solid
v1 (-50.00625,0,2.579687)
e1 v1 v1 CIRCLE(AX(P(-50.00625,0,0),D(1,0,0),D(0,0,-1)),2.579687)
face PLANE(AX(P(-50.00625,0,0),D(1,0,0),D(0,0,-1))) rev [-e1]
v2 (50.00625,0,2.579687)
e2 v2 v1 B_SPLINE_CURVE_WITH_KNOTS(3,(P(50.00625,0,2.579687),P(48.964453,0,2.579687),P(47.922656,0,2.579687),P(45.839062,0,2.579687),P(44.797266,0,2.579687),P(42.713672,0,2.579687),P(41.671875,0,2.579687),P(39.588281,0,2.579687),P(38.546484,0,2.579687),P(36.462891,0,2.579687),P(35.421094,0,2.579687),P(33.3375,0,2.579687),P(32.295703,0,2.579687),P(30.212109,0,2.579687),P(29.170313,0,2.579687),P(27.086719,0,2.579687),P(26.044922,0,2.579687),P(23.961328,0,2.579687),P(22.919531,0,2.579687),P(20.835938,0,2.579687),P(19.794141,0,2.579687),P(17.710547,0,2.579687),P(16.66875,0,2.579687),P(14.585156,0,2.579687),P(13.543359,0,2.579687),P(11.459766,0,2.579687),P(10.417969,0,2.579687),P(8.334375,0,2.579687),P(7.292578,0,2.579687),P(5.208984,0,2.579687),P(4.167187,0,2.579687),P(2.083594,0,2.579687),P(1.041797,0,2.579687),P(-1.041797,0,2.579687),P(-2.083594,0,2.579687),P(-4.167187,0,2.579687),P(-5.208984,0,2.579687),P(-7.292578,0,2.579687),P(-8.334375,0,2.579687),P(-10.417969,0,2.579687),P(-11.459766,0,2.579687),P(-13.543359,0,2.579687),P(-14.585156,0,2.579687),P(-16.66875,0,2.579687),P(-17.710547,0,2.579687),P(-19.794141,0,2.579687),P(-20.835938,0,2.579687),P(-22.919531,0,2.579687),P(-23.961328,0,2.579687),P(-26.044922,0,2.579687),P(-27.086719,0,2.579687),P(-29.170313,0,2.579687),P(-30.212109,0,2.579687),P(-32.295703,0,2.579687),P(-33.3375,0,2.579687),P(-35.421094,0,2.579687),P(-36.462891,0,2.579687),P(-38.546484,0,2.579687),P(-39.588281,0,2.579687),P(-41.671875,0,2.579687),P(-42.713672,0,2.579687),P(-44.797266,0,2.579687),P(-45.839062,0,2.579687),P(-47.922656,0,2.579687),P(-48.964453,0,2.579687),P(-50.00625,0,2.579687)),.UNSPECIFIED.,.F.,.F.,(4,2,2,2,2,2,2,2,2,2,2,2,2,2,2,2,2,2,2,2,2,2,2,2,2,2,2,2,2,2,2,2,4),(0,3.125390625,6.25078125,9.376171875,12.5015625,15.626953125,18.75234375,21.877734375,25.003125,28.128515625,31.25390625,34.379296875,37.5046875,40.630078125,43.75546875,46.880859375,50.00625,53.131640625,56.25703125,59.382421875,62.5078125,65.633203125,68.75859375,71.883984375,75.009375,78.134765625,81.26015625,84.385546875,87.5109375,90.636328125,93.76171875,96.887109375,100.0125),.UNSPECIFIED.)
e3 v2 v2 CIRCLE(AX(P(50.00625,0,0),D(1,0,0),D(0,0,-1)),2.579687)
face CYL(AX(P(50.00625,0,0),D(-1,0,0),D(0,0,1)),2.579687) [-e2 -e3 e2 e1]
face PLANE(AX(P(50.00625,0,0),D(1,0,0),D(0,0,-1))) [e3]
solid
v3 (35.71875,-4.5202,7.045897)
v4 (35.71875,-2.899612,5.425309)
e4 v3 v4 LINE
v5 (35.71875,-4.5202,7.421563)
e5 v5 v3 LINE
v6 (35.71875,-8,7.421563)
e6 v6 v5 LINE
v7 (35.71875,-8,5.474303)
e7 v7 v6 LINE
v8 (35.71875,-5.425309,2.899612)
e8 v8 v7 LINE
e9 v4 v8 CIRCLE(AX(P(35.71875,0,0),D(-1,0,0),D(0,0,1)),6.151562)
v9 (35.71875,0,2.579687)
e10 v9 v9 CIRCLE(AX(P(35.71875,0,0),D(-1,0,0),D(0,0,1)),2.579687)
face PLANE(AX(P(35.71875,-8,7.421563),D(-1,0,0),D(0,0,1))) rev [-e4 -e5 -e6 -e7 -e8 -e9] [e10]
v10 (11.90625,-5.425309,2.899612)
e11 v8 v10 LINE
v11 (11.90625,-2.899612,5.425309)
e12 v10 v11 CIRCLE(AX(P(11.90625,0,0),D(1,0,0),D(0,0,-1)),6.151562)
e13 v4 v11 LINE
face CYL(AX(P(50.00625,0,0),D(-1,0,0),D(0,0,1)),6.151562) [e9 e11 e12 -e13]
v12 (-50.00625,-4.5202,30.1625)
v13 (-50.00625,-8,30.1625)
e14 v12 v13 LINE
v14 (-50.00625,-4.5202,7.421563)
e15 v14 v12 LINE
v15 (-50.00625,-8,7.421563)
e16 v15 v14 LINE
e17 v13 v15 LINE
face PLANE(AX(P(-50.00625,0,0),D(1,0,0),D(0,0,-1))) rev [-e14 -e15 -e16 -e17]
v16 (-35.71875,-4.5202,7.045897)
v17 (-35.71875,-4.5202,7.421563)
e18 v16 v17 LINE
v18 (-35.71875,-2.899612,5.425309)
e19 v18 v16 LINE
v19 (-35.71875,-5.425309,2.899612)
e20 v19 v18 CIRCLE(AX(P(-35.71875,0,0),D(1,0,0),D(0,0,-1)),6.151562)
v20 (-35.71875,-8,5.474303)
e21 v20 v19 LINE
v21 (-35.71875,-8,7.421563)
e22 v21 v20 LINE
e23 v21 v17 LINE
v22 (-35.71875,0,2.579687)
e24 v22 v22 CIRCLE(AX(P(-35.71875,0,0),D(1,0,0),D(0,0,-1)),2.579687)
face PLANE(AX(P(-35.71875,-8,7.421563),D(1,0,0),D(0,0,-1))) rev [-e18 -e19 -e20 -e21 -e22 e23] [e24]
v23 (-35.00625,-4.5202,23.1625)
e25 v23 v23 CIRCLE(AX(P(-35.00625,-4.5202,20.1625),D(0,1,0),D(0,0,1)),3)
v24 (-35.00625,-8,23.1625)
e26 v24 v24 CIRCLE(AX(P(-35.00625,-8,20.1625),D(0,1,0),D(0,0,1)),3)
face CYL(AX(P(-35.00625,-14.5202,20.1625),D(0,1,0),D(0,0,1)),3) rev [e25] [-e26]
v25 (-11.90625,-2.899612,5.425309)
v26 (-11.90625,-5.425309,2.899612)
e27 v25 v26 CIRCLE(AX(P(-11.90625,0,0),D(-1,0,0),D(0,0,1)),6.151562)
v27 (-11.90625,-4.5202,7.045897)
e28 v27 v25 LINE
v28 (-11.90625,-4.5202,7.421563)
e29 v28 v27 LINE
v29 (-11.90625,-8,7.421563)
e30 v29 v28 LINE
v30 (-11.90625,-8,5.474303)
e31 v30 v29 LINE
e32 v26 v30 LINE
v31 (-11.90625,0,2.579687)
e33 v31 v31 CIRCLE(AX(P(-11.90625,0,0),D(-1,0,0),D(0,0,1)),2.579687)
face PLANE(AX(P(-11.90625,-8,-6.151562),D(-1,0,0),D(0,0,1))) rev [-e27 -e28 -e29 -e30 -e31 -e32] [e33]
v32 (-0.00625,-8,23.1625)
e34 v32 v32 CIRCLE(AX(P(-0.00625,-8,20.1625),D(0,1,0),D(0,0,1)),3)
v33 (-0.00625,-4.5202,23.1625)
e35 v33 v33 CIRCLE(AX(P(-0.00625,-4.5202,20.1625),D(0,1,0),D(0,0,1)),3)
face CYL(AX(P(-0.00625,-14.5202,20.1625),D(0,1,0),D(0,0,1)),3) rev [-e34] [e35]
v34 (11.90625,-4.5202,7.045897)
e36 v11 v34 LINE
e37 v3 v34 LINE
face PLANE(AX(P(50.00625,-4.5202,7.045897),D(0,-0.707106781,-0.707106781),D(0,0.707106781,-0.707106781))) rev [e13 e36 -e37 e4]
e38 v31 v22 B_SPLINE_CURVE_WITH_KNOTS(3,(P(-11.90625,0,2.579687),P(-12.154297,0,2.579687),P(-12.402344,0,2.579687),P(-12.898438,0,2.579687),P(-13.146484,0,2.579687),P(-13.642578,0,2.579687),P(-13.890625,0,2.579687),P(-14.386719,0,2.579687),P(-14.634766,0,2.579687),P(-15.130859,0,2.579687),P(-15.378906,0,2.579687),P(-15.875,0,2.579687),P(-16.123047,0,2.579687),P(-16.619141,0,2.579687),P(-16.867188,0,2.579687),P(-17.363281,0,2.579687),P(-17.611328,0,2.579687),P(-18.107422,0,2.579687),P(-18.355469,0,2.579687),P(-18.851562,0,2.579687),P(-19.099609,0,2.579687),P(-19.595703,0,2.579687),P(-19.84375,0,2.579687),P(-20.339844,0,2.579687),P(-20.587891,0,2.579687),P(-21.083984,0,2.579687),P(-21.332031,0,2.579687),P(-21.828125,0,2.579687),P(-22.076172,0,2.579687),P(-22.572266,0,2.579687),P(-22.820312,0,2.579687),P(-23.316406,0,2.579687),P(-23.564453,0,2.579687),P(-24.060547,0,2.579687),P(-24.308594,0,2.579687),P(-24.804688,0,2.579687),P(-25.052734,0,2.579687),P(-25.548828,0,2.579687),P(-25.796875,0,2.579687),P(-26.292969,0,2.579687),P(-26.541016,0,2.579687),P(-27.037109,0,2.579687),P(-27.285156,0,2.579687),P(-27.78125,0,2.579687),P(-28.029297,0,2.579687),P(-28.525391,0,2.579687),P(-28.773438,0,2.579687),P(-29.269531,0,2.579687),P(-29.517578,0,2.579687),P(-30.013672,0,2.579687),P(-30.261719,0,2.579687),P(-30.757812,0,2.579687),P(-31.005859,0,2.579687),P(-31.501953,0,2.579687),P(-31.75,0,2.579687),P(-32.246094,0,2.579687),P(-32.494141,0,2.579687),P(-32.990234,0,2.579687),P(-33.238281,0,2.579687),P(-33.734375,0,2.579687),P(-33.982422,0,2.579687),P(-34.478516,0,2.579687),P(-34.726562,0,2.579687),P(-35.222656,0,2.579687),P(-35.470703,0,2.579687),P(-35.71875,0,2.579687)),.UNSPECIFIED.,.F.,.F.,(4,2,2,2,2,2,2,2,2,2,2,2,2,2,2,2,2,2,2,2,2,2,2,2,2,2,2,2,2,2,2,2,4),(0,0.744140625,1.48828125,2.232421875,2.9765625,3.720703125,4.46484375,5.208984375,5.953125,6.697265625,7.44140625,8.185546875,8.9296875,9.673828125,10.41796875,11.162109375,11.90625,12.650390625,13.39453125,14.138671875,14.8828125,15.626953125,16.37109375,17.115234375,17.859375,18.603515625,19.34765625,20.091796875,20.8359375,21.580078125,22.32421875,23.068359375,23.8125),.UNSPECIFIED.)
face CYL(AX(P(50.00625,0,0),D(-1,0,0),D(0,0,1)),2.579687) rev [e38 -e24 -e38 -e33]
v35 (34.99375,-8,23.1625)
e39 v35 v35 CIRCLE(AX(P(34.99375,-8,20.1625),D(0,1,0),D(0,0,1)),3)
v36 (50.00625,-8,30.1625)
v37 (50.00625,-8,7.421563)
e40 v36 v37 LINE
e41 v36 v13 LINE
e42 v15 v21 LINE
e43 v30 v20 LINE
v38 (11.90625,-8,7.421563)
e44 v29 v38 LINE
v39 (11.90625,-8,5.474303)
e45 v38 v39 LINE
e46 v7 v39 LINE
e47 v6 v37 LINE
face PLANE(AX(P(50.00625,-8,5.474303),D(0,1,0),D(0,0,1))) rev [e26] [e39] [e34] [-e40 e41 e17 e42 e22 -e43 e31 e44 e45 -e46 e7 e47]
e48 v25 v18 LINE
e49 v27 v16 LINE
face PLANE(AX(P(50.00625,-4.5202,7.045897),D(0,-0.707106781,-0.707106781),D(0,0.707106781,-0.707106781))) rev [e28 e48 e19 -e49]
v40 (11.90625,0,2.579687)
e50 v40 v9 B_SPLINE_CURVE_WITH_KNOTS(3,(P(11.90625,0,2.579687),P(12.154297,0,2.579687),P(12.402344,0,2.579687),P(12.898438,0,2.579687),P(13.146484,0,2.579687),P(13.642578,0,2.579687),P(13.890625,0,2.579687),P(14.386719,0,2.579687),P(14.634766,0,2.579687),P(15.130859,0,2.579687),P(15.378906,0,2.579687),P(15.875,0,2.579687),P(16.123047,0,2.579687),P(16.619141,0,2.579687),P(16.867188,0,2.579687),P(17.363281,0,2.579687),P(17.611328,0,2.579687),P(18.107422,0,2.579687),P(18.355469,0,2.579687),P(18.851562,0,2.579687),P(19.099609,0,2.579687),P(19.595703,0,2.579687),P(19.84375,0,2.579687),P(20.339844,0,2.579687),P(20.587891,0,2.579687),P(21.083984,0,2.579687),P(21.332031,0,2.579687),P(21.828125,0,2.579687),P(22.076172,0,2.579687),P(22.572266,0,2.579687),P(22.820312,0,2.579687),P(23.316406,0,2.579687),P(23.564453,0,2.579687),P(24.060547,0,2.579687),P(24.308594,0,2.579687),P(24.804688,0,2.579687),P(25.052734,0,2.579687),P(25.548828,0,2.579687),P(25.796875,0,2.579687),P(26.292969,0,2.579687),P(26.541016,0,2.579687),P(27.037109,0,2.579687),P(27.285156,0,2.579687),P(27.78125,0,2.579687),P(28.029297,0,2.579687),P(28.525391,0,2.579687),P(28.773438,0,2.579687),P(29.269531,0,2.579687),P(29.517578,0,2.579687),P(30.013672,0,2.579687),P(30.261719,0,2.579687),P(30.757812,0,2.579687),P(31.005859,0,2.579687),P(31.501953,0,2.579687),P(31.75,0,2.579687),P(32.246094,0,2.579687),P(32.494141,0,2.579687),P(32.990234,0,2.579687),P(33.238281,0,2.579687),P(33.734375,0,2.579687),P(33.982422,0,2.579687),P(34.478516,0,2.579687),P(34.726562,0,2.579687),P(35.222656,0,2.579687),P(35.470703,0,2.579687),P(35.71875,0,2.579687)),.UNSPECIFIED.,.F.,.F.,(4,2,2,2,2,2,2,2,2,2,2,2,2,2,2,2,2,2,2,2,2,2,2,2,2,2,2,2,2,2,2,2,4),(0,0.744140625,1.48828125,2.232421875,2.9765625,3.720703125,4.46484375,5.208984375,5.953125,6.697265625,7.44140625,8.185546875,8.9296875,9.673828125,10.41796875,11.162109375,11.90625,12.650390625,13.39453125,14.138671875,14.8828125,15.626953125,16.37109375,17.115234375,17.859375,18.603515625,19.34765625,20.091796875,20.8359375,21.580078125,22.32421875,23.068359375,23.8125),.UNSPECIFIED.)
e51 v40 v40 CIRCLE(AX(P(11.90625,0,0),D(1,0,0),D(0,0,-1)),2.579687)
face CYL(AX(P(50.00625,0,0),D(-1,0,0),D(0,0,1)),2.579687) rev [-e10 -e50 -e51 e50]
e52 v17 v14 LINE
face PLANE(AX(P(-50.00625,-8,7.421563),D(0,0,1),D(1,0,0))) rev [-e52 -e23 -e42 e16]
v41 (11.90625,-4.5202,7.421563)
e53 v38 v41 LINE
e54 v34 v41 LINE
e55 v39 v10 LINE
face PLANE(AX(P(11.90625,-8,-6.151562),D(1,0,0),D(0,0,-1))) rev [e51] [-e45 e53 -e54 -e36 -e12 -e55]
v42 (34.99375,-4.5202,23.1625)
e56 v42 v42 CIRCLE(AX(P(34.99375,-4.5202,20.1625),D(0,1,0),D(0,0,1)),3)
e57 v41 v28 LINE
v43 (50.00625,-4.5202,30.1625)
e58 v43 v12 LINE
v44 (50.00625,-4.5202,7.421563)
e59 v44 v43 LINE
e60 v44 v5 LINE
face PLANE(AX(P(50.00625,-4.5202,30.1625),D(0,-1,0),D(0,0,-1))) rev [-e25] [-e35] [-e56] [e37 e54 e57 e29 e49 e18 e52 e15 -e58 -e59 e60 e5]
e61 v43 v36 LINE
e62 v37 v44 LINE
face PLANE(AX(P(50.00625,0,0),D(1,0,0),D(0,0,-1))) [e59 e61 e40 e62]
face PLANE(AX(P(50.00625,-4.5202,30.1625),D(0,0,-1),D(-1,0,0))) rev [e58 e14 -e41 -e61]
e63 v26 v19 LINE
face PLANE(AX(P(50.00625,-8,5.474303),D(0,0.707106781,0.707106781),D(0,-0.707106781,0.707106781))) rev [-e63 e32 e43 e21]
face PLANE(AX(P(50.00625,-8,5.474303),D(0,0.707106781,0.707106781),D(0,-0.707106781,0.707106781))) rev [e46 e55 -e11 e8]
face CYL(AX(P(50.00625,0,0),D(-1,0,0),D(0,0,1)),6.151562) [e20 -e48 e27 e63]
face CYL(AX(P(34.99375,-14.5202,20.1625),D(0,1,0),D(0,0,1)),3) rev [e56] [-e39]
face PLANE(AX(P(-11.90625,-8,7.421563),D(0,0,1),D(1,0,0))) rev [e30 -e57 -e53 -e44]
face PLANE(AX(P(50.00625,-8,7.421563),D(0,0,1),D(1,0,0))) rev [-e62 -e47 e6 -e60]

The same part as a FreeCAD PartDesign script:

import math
import FreeCAD as App
import Part
import Sketcher

V = App.Vector
Q = App.Units.Quantity


def add_polygon(sketch, points):
    """Adds a closed chain of lines whose ends are joined by coincident constraints."""
    first, n = sketch.GeometryCount, len(points)
    for a, b in zip(points, points[1:] + points[:1]):
        sketch.addGeometry(Part.LineSegment(App.Vector(*a, 0), App.Vector(*b, 0)), False)
    for i in range(n):
        sketch.addConstraint(Sketcher.Constraint("Coincident", first + i, 2, first + (i + 1) % n, 1))

doc = App.newDocument("Part")
body = doc.addObject("PartDesign::Body", "Body")

# Sketch on YZ plane
sketch1 = body.newObject("Sketcher::SketchObject", "Sketch")
sketch1.AttachmentSupport = (doc.getObject("YZ_Plane"), [""])
sketch1.MapMode = "FlatFace"
sketch1.addGeometry([
    Part.LineSegment(V(-8, 5.5, 0), V(-5.4, 2.9, 0)),  # 0
    Part.ArcOfCircle(Part.Circle(V(0, 0, 0), V(0, 0, 1), 6.2), math.radians(152), math.radians(478)),  # 1
    Part.LineSegment(V(-2.9, 5.4, 0), V(-4.5, 7, 0)),  # 2
    Part.LineSegment(V(-4.5, 7, 0), V(-4.5, 30.2, 0)),  # 3
    Part.LineSegment(V(-4.5, 30.2, 0), V(-8, 30.2, 0)),  # 4
    Part.LineSegment(V(-8, 30.2, 0), V(-8, 5.5, 0)),  # 5
    Part.Circle(V(0, 0, 0), V(0, 0, 1), 2.6),  # 6
], False)
sketch1.addConstraint([
    Sketcher.Constraint("Coincident", 0, 2, 1, 1),
    Sketcher.Constraint("Coincident", 1, 2, 2, 1),
    Sketcher.Constraint("Coincident", 2, 2, 3, 1),
    Sketcher.Constraint("Coincident", 3, 2, 4, 1),
    Sketcher.Constraint("Coincident", 4, 2, 5, 1),
    Sketcher.Constraint("Coincident", 5, 2, 0, 1),
    Sketcher.Constraint("Vertical", 3),
    Sketcher.Constraint("Horizontal", 4),
    Sketcher.Constraint("Vertical", 5),
    Sketcher.Constraint("Coincident", 1, 3, -1, 1),
    Sketcher.Constraint("Coincident", 6, 3, -1, 1),
    Sketcher.Constraint("Parallel", 0, 2),
    Sketcher.Constraint("Diameter", 6, Q("0.203125 in")),
    Sketcher.Constraint("Angle", 0, Q("-45 deg")),
    Sketcher.Constraint("DistanceX", 4, 2, 4, 1, Q("0.137 in")),
    Sketcher.Constraint("DistanceY", -1, 1, 3, 2, Q("1.1875 in")),
    Sketcher.Constraint("Radius", 1, Q("6.151562 mm")),
    Sketcher.Constraint("DistanceX", 2, 2, -1, 1, Q("4.5202 mm")),
    Sketcher.Constraint("Distance", 2, Q("2.291858 mm")),
    Sketcher.Constraint("DistanceY", 5, 2, 5, 1, Q("24.688197 mm")),
])
pad1 = body.newObject("PartDesign::Pad", "Pad")
pad1.Profile = sketch1
pad1.Length = Q("3.9375 in")
pad1.Midplane = True

# Sketch on XZ plane
sketch2 = body.newObject("Sketcher::SketchObject", "Sketch001")
sketch2.AttachmentSupport = (doc.getObject("XZ_Plane"), [""])
sketch2.MapMode = "FlatFace"
add_polygon(sketch2, [(36, -6), (36, 7), (50, 7), (50, -6)])  # lines 0-3
add_polygon(sketch2, [(-50, -6), (-50, 7), (-36, 7), (-36, -6)])  # lines 4-7
add_polygon(sketch2, [(-12, -6), (-12, 7), (12, 7), (12, -6)])  # lines 8-11
sketch2.addConstraint([
    Sketcher.Constraint("Vertical", 0),
    Sketcher.Constraint("Horizontal", 1),
    Sketcher.Constraint("Vertical", 2),
    Sketcher.Constraint("Horizontal", 3),
    Sketcher.Constraint("Vertical", 4),
    Sketcher.Constraint("Horizontal", 5),
    Sketcher.Constraint("Vertical", 6),
    Sketcher.Constraint("Horizontal", 7),
    Sketcher.Constraint("Vertical", 8),
    Sketcher.Constraint("Horizontal", 9),
    Sketcher.Constraint("Vertical", 10),
    Sketcher.Constraint("Horizontal", 11),
    Sketcher.Constraint("Symmetric", 1, 2, 4, 2, -2),
    Sketcher.Constraint("Symmetric", 3, 2, 6, 2, -2),
    Sketcher.Constraint("Horizontal", 5, 2, 8, 2),
    Sketcher.Constraint("Horizontal", 7, 2, 10, 2),
    Sketcher.Constraint("DistanceX", 4, 2, 8, 2, Q("1.5 in")),
    Sketcher.Constraint("DistanceX", 9, 2, 1, 2, Q("1.5 in")),
    Sketcher.Constraint("DistanceX", 1, 1, 1, 2, Q("0.5625 in")),
    Sketcher.Constraint("DistanceX", 9, 1, 9, 2, Q("0.9375 in")),
    Sketcher.Constraint("DistanceY", 0, 1, 0, 2, Q("13.573125 mm")),
    Sketcher.Constraint("DistanceY", -1, 1, 0, 2, Q("7.421563 mm")),
])
pocket1 = body.newObject("PartDesign::Pocket", "Pocket")
pocket1.Profile = sketch2
pocket1.Type = "ThroughAll"
pocket1.Midplane = True

# Sketch on XZ plane
sketch3 = body.newObject("Sketcher::SketchObject", "Sketch002")
sketch3.AttachmentSupport = (doc.getObject("XZ_Plane"), [""])
sketch3.MapMode = "FlatFace"
sketch3.AttachmentOffset = App.Placement(V(0, 0, 4.5202), App.Rotation())
sketch3.addGeometry([
    Part.Circle(V(-35, 20.2, 0), V(0, 0, 1), 3),
    Part.Circle(V(0, 20.2, 0), V(0, 0, 1), 3),
    Part.Circle(V(35, 20.2, 0), V(0, 0, 1), 3),
], False)
sketch3.addConstraint([
    Sketcher.Constraint("Equal", 0, 1),
    Sketcher.Constraint("Equal", 1, 2),
    Sketcher.Constraint("Horizontal", 0, 3, 1, 3),
    Sketcher.Constraint("Horizontal", 1, 3, 2, 3),
    Sketcher.Constraint("Diameter", 0, Q("6 mm")),
    Sketcher.Constraint("DistanceY", -1, 1, 0, 3, Q("20.1625 mm")),
    Sketcher.Constraint("DistanceX", 0, 3, 1, 3, Q("35 mm")),
    Sketcher.Constraint("DistanceX", 1, 3, 2, 3, Q("35 mm")),
    Sketcher.Constraint("DistanceX", 0, 3, -1, 1, Q("35.00625 mm")),
])
pocket2 = body.newObject("PartDesign::Pocket", "Pocket001")
pocket2.Profile = sketch3
pocket2.Length = 10
pocket2.Reversed = True
body2 = doc.addObject("PartDesign::Body", "Body001")

# Sketch on YZ plane
sketch4 = body2.newObject("Sketcher::SketchObject", "Sketch003")
sketch4.AttachmentSupport = (doc.getObject("YZ_Plane001"), [""])
sketch4.MapMode = "FlatFace"
sketch4.addGeometry(Part.Circle(V(0, 0, 0), V(0, 0, 1), 2.6), False)
sketch4.addConstraint([
    Sketcher.Constraint("Coincident", 0, 3, -1, 1),
    Sketcher.Constraint("Diameter", 0, Q("0.203125 in")),
])
pad2 = body2.newObject("PartDesign::Pad", "Pad001")
pad2.Profile = sketch4
pad2.Length = Q("3.9375 in")
pad2.Midplane = True

doc.recompute()
